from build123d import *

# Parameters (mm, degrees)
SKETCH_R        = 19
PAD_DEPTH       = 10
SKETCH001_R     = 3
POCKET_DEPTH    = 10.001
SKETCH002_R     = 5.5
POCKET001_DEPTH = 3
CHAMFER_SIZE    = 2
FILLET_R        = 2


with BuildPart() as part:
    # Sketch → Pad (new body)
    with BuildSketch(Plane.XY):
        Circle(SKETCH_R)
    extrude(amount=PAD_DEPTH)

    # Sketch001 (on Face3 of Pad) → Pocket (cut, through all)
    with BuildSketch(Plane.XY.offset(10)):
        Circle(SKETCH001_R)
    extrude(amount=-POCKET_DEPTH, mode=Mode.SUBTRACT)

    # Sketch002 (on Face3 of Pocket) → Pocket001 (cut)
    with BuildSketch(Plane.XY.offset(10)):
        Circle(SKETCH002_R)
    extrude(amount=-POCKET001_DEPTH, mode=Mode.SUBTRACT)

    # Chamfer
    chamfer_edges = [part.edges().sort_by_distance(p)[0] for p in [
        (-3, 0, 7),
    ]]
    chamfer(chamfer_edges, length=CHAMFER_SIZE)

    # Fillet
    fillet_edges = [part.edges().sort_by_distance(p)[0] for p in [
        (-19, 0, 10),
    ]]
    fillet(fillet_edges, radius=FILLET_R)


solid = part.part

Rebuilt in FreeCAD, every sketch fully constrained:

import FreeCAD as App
import Part
import Sketcher


def edges_at(feature, points):
    """Names of the edges that pass closest to the given points."""
    edges = feature.Shape.Edges
    near = lambda p: min(range(len(edges)), key=lambda i: edges[i].distToShape(Part.Vertex(*p))[0])
    return sorted({f"Edge{near(p) + 1}" for p in points})

doc = App.newDocument("Part")
body = doc.addObject("PartDesign::Body", "Body")

# Sketch on XY plane
sketch1 = body.newObject("Sketcher::SketchObject", "Sketch")
sketch1.AttachmentSupport = (doc.getObject("XY_Plane"), [""])
sketch1.MapMode = "FlatFace"
sketch1.addGeometry(Part.Circle(App.Vector(0, 0, 0), App.Vector(0, 0, 1), 19), False)
sketch1.addConstraint(Sketcher.Constraint("Coincident", 0, 3, -1, 1))
sketch1.addConstraint(Sketcher.Constraint("Diameter", 0, 38.0))
pad1 = body.newObject("PartDesign::Pad", "Pad")
pad1.Profile = sketch1
pad1.Length = 10

# Sketch on XY plane
sketch2 = body.newObject("Sketcher::SketchObject", "Sketch001")
sketch2.AttachmentSupport = (doc.getObject("XY_Plane"), [""])
sketch2.MapMode = "FlatFace"
sketch2.AttachmentOffset = App.Placement(App.Vector(0, 0, 10), App.Rotation())
sketch2.addGeometry(Part.Circle(App.Vector(0, 0, 0), App.Vector(0, 0, 1), 3), False)
sketch2.addConstraint(Sketcher.Constraint("Coincident", 0, 3, -1, 1))
sketch2.addConstraint(Sketcher.Constraint("Diameter", 0, 6.0))
pocket1 = body.newObject("PartDesign::Pocket", "Pocket")
pocket1.Profile = sketch2
pocket1.Type = "ThroughAll"

# Sketch on XY plane
sketch3 = body.newObject("Sketcher::SketchObject", "Sketch002")
sketch3.AttachmentSupport = (doc.getObject("XY_Plane"), [""])
sketch3.MapMode = "FlatFace"
sketch3.AttachmentOffset = App.Placement(App.Vector(0, 0, 10), App.Rotation())
sketch3.addGeometry(Part.Circle(App.Vector(0, 0, 0), App.Vector(0, 0, 1), 6), False)
sketch3.addConstraint(Sketcher.Constraint("Coincident", 0, 3, -1, 1))
sketch3.addConstraint(Sketcher.Constraint("Diameter", 0, 11.0))
pocket2 = body.newObject("PartDesign::Pocket", "Pocket001")
pocket2.Profile = sketch3
pocket2.Length = 3
doc.recompute()

chamfer = body.newObject("PartDesign::Chamfer", "Chamfer")
chamfer.Base = (pocket2, edges_at(pocket2, [(-3, 0, 7)]))
chamfer.Size = 2
doc.recompute()

fillet = body.newObject("PartDesign::Fillet", "Fillet")
fillet.Base = (chamfer, edges_at(chamfer, [(-19, 0, 10)]))
fillet.Radius = 2

doc.recompute()
